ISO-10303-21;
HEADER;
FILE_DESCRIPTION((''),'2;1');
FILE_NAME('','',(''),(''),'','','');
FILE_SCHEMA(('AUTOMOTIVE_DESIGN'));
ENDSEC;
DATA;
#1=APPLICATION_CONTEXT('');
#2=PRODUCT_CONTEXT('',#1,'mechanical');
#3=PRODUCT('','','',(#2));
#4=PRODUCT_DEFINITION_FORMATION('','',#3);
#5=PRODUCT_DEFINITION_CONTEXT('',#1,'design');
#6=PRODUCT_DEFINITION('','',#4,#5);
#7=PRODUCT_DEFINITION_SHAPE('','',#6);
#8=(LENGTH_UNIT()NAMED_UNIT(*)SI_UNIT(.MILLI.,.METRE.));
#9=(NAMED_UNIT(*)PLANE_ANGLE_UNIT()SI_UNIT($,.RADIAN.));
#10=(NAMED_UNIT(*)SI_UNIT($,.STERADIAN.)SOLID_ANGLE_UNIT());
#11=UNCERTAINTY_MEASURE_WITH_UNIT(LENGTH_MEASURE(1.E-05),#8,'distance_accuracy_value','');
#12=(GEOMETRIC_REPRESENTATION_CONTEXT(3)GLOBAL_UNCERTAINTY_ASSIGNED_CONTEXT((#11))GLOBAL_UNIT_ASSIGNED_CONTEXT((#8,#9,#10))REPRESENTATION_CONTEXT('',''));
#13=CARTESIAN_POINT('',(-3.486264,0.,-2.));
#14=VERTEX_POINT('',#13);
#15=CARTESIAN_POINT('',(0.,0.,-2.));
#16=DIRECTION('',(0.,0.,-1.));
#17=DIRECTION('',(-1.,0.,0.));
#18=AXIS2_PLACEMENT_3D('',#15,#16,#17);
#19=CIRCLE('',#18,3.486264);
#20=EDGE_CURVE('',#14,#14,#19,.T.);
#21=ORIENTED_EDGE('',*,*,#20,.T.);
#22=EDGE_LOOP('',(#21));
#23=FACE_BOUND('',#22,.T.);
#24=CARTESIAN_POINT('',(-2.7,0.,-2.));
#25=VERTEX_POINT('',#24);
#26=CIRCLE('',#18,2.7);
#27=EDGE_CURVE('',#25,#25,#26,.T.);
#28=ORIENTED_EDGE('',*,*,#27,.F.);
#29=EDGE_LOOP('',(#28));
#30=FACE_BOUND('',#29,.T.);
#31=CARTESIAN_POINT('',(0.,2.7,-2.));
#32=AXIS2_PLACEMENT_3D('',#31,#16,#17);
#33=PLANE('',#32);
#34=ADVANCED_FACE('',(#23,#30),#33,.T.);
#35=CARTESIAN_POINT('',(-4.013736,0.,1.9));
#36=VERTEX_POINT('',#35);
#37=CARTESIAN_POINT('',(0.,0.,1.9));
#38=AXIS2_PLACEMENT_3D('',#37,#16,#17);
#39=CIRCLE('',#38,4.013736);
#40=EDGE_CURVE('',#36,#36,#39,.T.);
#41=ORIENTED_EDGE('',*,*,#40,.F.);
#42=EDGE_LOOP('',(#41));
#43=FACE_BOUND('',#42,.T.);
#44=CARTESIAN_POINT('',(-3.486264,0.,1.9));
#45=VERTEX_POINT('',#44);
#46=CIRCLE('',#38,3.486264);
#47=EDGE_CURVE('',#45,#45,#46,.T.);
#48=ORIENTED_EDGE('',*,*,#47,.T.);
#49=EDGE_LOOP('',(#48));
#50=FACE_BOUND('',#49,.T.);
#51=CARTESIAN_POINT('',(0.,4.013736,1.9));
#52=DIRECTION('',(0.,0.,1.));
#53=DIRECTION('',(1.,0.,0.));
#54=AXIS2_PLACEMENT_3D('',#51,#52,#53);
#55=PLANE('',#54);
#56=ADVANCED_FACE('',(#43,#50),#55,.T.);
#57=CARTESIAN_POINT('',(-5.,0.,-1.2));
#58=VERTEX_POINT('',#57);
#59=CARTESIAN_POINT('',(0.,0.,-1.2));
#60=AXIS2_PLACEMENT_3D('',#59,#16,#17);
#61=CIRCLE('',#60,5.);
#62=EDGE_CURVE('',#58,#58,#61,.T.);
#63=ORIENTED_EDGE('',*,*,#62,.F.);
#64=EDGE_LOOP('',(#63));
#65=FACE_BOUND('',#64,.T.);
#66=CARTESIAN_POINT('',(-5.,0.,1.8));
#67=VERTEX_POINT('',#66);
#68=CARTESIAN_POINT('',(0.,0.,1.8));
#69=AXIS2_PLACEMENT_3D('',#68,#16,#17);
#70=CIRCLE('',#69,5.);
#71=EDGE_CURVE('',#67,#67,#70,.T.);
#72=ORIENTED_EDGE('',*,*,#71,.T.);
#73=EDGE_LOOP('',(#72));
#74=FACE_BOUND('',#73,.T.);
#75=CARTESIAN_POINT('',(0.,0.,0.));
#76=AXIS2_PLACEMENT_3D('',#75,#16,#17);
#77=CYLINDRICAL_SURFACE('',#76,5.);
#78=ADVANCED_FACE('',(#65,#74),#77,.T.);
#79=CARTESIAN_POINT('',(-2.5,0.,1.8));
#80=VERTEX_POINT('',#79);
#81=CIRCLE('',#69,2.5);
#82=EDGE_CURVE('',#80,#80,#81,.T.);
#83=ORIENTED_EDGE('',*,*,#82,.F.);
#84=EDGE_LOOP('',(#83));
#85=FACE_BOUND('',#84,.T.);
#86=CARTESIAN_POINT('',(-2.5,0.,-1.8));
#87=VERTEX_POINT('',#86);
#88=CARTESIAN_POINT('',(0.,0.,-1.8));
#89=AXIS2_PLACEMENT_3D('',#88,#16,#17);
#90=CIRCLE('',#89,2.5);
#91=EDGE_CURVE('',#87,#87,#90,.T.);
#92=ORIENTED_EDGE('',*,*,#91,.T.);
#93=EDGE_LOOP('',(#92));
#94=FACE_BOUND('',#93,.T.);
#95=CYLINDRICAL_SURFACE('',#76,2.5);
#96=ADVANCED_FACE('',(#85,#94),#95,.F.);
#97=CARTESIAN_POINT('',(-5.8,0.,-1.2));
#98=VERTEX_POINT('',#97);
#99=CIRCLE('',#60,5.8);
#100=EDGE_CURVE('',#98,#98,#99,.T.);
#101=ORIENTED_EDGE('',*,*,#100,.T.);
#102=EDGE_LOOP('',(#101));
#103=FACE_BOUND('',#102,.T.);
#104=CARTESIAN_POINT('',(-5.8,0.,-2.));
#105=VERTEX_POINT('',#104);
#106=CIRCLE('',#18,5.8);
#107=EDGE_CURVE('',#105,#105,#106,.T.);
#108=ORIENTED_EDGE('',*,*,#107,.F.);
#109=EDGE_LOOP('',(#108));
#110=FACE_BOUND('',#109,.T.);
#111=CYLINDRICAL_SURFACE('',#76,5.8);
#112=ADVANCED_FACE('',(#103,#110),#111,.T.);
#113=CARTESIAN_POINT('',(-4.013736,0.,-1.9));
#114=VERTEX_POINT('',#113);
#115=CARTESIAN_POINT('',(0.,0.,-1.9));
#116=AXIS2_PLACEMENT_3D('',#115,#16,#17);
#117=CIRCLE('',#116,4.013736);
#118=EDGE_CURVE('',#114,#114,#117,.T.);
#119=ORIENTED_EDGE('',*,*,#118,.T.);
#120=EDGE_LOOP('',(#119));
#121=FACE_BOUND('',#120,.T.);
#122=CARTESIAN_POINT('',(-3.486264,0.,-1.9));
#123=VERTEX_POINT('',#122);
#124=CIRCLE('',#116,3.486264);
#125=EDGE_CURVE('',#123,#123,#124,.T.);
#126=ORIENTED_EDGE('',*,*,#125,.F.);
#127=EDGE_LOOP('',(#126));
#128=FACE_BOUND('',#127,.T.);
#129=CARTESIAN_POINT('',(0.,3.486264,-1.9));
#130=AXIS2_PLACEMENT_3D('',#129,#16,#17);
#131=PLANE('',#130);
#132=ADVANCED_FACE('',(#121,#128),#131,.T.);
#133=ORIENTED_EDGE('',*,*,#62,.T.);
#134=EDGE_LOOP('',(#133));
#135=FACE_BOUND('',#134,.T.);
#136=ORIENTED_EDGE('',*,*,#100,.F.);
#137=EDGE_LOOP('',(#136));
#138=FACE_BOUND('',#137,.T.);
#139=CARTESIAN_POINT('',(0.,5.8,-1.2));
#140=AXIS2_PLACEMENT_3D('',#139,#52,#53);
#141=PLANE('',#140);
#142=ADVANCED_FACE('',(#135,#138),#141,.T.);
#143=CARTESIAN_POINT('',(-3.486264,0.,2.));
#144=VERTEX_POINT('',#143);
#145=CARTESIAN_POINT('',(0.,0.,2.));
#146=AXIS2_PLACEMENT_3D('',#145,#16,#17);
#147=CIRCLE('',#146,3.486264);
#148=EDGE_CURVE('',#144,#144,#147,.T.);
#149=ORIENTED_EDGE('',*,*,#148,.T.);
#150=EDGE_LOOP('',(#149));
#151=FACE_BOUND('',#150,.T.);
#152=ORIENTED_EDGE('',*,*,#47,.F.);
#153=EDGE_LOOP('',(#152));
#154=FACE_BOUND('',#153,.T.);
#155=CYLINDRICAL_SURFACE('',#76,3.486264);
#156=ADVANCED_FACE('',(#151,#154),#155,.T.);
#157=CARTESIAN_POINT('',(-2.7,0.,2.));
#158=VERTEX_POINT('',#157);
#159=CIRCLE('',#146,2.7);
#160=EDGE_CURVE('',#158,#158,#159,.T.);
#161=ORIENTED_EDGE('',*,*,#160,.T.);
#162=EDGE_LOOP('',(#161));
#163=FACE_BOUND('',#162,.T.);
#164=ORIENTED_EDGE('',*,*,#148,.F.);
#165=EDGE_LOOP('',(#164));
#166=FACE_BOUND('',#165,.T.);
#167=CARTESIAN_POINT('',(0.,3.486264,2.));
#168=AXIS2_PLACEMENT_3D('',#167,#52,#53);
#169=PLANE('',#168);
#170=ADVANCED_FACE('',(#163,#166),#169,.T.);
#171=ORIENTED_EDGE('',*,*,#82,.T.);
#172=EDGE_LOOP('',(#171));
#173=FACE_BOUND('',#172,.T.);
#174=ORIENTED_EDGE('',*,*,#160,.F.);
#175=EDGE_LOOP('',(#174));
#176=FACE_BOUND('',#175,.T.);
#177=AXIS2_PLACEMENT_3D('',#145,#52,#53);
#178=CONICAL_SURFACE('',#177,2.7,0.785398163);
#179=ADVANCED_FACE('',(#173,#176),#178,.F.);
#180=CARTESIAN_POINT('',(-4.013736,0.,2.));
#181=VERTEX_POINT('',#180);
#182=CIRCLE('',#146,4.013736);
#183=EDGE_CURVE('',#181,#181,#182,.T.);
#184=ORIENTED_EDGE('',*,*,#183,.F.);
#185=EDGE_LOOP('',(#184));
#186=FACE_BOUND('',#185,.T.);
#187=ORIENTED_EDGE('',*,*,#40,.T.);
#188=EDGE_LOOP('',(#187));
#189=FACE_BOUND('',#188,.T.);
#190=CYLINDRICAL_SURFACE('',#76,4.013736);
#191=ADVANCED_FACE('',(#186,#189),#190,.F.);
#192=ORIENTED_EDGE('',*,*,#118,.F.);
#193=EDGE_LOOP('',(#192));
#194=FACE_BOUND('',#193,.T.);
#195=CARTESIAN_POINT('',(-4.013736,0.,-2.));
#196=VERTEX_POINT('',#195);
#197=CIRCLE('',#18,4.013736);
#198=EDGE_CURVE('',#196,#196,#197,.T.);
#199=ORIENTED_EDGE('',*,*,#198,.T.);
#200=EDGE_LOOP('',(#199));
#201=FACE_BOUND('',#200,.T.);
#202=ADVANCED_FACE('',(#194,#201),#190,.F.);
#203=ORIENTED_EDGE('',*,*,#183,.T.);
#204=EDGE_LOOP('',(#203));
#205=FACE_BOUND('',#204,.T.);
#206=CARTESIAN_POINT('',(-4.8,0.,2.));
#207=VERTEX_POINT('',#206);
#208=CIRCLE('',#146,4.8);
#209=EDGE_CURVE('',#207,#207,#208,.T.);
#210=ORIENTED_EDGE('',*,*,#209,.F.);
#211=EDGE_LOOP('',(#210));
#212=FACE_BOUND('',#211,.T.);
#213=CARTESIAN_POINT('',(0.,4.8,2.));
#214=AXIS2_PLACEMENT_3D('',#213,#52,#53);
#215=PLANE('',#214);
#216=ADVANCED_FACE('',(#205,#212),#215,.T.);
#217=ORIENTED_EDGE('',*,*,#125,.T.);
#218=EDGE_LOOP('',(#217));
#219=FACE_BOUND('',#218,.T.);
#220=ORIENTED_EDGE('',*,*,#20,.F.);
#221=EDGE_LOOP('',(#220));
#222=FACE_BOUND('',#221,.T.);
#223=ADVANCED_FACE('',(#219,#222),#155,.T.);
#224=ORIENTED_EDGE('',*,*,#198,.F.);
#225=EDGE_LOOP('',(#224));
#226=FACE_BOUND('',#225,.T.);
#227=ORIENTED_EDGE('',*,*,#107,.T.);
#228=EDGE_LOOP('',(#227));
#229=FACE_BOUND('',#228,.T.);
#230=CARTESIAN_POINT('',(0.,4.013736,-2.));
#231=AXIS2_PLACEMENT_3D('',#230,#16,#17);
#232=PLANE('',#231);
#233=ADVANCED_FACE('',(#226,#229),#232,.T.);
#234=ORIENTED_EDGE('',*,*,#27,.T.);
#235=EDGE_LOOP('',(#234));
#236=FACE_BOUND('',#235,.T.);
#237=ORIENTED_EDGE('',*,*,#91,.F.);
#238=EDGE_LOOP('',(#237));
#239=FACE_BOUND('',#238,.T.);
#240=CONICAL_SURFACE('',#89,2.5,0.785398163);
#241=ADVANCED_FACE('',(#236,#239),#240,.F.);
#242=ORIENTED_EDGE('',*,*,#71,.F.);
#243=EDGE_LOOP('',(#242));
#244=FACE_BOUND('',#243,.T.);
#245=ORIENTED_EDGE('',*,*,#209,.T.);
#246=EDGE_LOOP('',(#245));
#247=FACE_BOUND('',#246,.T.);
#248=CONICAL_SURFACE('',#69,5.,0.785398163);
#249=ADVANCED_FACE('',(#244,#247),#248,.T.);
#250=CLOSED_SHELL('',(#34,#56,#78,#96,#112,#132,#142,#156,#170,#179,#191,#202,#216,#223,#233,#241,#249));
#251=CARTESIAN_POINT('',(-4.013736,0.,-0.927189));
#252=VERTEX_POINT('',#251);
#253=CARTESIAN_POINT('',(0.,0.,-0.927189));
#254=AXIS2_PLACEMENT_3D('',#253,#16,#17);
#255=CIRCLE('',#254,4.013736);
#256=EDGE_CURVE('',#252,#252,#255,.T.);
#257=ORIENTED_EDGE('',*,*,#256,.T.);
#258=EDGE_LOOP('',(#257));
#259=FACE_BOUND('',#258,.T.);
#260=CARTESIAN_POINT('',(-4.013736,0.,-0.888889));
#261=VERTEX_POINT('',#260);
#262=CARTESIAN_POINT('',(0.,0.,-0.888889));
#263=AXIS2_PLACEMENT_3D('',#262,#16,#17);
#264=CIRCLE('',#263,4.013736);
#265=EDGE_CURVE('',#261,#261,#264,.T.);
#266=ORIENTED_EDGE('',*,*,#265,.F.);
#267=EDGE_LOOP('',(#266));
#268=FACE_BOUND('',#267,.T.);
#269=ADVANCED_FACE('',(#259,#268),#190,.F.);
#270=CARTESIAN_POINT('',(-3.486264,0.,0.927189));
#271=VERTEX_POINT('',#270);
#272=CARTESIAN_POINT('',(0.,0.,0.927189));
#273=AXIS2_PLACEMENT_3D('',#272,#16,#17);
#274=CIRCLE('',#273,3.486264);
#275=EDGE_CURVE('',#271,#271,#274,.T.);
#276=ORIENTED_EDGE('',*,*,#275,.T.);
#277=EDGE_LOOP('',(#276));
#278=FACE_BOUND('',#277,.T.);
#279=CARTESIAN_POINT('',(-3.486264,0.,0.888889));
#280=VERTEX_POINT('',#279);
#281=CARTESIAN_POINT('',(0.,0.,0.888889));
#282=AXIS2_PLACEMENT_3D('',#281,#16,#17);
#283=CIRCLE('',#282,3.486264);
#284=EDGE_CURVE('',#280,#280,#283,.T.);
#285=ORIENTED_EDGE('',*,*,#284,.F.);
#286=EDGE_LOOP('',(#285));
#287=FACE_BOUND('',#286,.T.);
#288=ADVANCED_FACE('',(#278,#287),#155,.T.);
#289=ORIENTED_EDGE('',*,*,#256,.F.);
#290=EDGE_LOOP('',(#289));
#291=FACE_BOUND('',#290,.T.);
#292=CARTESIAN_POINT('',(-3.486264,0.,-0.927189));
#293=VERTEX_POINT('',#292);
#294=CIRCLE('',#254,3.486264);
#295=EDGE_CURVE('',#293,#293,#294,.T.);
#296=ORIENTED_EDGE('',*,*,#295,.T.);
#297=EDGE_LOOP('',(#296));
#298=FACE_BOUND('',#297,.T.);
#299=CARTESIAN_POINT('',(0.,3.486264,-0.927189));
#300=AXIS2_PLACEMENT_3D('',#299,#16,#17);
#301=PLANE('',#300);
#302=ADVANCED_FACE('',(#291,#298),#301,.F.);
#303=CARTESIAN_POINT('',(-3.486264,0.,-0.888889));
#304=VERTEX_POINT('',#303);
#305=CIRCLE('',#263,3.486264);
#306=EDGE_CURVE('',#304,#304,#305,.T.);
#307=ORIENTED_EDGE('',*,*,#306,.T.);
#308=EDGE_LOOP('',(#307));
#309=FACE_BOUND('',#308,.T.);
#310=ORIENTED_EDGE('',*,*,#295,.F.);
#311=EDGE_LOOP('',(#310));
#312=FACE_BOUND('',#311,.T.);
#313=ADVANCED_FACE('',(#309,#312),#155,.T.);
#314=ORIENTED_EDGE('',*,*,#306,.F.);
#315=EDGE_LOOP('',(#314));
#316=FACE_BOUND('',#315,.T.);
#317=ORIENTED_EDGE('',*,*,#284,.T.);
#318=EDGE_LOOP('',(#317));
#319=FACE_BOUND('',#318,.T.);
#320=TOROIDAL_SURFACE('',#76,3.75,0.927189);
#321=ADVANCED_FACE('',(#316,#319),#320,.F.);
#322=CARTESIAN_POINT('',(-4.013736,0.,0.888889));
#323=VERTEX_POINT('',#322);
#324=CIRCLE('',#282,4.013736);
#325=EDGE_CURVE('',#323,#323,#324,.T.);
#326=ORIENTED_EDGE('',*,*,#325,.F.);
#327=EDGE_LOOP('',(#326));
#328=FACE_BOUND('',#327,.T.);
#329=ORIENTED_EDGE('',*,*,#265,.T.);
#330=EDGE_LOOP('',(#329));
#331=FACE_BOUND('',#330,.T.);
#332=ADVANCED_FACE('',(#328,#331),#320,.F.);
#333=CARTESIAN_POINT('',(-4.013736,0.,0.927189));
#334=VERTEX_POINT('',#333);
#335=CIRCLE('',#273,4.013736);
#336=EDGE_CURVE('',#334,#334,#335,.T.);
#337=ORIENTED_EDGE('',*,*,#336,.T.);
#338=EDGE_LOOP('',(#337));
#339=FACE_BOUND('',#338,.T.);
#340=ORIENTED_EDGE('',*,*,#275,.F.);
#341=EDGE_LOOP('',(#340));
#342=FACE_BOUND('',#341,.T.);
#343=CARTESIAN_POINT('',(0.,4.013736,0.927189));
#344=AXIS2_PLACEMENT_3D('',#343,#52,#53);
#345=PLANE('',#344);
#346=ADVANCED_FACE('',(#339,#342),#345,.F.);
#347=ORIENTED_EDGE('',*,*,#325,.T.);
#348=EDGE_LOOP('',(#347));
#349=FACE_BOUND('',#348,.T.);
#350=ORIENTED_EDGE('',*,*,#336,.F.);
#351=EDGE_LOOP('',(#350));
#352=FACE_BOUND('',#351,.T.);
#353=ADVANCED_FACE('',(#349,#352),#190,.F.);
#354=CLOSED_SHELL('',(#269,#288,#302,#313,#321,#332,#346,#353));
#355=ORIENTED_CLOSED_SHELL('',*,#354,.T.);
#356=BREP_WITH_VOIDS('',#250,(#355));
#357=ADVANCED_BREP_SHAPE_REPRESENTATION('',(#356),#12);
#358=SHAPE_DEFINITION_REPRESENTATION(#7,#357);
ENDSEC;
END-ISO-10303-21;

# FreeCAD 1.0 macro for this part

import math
import FreeCAD as App
import Part
import Sketcher

doc = App.newDocument("Part")
params = doc.addObject("Spreadsheet::Sheet", "Params")
for row, (alias, value) in enumerate([
    ("sketch1_height", "3 mm"),
    ("sketch1_width", "0.8 mm"),
    ("sketch1_height2", "0.1 mm"),
    ("sketch1_height3", "3.6 mm"),
    ("revolution_angle", "360 deg"),
], start=1):
    params.set(f"A{row}", alias)
    params.set(f"B{row}", "=" + value)
    params.setAlias(f"B{row}", alias)

body = doc.addObject("PartDesign::Body", "Body")

# Sketch on YZ plane
sketch1 = body.newObject("Sketcher::SketchObject", "Sketch")
sketch1.AttachmentSupport = (doc.getObject("YZ_Plane"), [""])
sketch1.MapMode = "FlatFace"
sketch1.addGeometry([
    Part.LineSegment(App.Vector(5.8, -2, 0), App.Vector(5.8, -1.2, 0)),  # 0
    Part.LineSegment(App.Vector(5.8, -1.2, 0), App.Vector(5, -1.2, 0)),  # 1
    Part.LineSegment(App.Vector(5, -1.2, 0), App.Vector(5, 1.8, 0)),  # 2
    Part.LineSegment(App.Vector(5, 1.8, 0), App.Vector(4.8, 2, 0)),  # 3
    Part.LineSegment(App.Vector(4.8, 2, 0), App.Vector(4.014, 2, 0)),  # 4
    Part.LineSegment(App.Vector(4.014, 2, 0), App.Vector(4.014, 1.9, 0)),  # 5
    Part.LineSegment(App.Vector(4.014, 1.9, 0), App.Vector(3.486, 1.9, 0)),  # 6
    Part.LineSegment(App.Vector(3.486, 1.9, 0), App.Vector(3.486, 2, 0)),  # 7
    Part.LineSegment(App.Vector(3.486, 2, 0), App.Vector(2.7, 2, 0)),  # 8
    Part.LineSegment(App.Vector(2.7, 2, 0), App.Vector(2.5, 1.8, 0)),  # 9
    Part.LineSegment(App.Vector(2.5, 1.8, 0), App.Vector(2.5, -1.8, 0)),  # 10
    Part.LineSegment(App.Vector(2.5, -1.8, 0), App.Vector(2.7, -2, 0)),  # 11
    Part.LineSegment(App.Vector(2.7, -2, 0), App.Vector(3.486, -2, 0)),  # 12
    Part.LineSegment(App.Vector(3.486, -2, 0), App.Vector(3.486, -1.9, 0)),  # 13
    Part.LineSegment(App.Vector(3.486, -1.9, 0), App.Vector(4.014, -1.9, 0)),  # 14
    Part.LineSegment(App.Vector(4.014, -1.9, 0), App.Vector(4.014, -2, 0)),  # 15
    Part.LineSegment(App.Vector(4.014, -2, 0), App.Vector(5.8, -2, 0)),  # 16
    Part.LineSegment(App.Vector(4.014, 0.927, 0), App.Vector(4.014, 0.889, 0)),  # 17
    Part.ArcOfCircle(Part.Circle(App.Vector(3.75, 0, 0), App.Vector(0, 0, 1), 0.927), math.radians(-73), math.radians(73)),  # 18
    Part.LineSegment(App.Vector(4.014, -0.889, 0), App.Vector(4.014, -0.927, 0)),  # 19
    Part.LineSegment(App.Vector(4.014, -0.927, 0), App.Vector(3.486, -0.927, 0)),  # 20
    Part.LineSegment(App.Vector(3.486, -0.927, 0), App.Vector(3.486, -0.889, 0)),  # 21
    Part.ArcOfCircle(Part.Circle(App.Vector(3.75, 0, 0), App.Vector(0, 0, 1), 0.927), math.radians(107), math.radians(253)),  # 22
    Part.LineSegment(App.Vector(3.486, 0.889, 0), App.Vector(3.486, 0.927, 0)),  # 23
    Part.LineSegment(App.Vector(3.486, 0.927, 0), App.Vector(4.014, 0.927, 0)),  # 24
], False)
sketch1.addConstraint([
    Sketcher.Constraint("Coincident", 0, 2, 1, 1),
    Sketcher.Constraint("Coincident", 1, 2, 2, 1),
    Sketcher.Constraint("Coincident", 2, 2, 3, 1),
    Sketcher.Constraint("Coincident", 3, 2, 4, 1),
    Sketcher.Constraint("Coincident", 4, 2, 5, 1),
    Sketcher.Constraint("Coincident", 5, 2, 6, 1),
    Sketcher.Constraint("Coincident", 6, 2, 7, 1),
    Sketcher.Constraint("Coincident", 7, 2, 8, 1),
    Sketcher.Constraint("Coincident", 8, 2, 9, 1),
    Sketcher.Constraint("Coincident", 9, 2, 10, 1),
    Sketcher.Constraint("Coincident", 10, 2, 11, 1),
    Sketcher.Constraint("Coincident", 11, 2, 12, 1),
    Sketcher.Constraint("Coincident", 12, 2, 13, 1),
    Sketcher.Constraint("Coincident", 13, 2, 14, 1),
    Sketcher.Constraint("Coincident", 14, 2, 15, 1),
    Sketcher.Constraint("Coincident", 15, 2, 16, 1),
    Sketcher.Constraint("Coincident", 16, 2, 0, 1),
    Sketcher.Constraint("Coincident", 17, 2, 18, 2),
    Sketcher.Constraint("Coincident", 18, 1, 19, 1),
    Sketcher.Constraint("Coincident", 19, 2, 20, 1),
    Sketcher.Constraint("Coincident", 20, 2, 21, 1),
    Sketcher.Constraint("Coincident", 21, 2, 22, 2),
    Sketcher.Constraint("Coincident", 22, 1, 23, 1),
    Sketcher.Constraint("Coincident", 23, 2, 24, 1),
    Sketcher.Constraint("Coincident", 24, 2, 17, 1),
    Sketcher.Constraint("Vertical", 0),
    Sketcher.Constraint("Horizontal", 1),
    Sketcher.Constraint("Vertical", 2),
    Sketcher.Constraint("Horizontal", 4),
    Sketcher.Constraint("Vertical", 5),
    Sketcher.Constraint("Horizontal", 6),
    Sketcher.Constraint("Vertical", 7),
    Sketcher.Constraint("Horizontal", 8),
    Sketcher.Constraint("Vertical", 10),
    Sketcher.Constraint("Horizontal", 12),
    Sketcher.Constraint("Vertical", 13),
    Sketcher.Constraint("Horizontal", 14),
    Sketcher.Constraint("Vertical", 15),
    Sketcher.Constraint("Horizontal", 16),
    Sketcher.Constraint("Vertical", 17),
    Sketcher.Constraint("Vertical", 19),
    Sketcher.Constraint("Horizontal", 20),
    Sketcher.Constraint("Vertical", 21),
    Sketcher.Constraint("Vertical", 23),
    Sketcher.Constraint("Horizontal", 24),
    Sketcher.Constraint("Coincident", 22, 3, 18, 3),
    Sketcher.Constraint("Equal", 18, 22),
    Sketcher.Constraint("Symmetric", 8, 2, 11, 2, -1),
    Sketcher.Constraint("Symmetric", 6, 2, 13, 2, -1),
    Sketcher.Constraint("Symmetric", 4, 2, 15, 2, -1),
    Sketcher.Constraint("Symmetric", 17, 2, 18, 1, -1),
    Sketcher.Constraint("Symmetric", 20, 2, 23, 2, -1),
    Sketcher.Constraint("Perpendicular", 3, 9),
    Sketcher.Constraint("Perpendicular", 9, 11),
    Sketcher.Constraint("Horizontal", 4, 2, 7, 2),
    Sketcher.Constraint("Horizontal", 2, 2, 9, 2),
    Sketcher.Constraint("Horizontal", 18, 1, 21, 2),
    Sketcher.Constraint("Vertical", 15, 2, 17, 2),
    Sketcher.Constraint("Vertical", 13, 2, 20, 2),
    Sketcher.Constraint("Equal", 4, 8),
    Sketcher.Constraint("Equal", 1, 0),
    Sketcher.Constraint("Equal", 3, 9),
    Sketcher.Constraint("DistanceY", 2, 1, 2, 2, 3.0),
    Sketcher.Constraint("DistanceX", 1, 2, 1, 1, 0.8),
    Sketcher.Constraint("DistanceY", 5, 2, 5, 1, 0.1),
    Sketcher.Constraint("DistanceY", 10, 2, 10, 1, 3.6),
    Sketcher.Constraint("DistanceX", -1, 1, 1, 2, 5.0),
    Sketcher.Constraint("DistanceX", -1, 1, 8, 2, 2.7),
    Sketcher.Constraint("Radius", 18, 0.927189),
    Sketcher.Constraint("DistanceY", 17, 2, 17, 1, 0.038301),
    Sketcher.Constraint("DistanceX", 4, 2, 4, 1, 0.786264),
])
sketch1.setExpression("Constraints[62]", "Params.sketch1_height")
sketch1.setExpression("Constraints[63]", "Params.sketch1_width")
sketch1.setExpression("Constraints[64]", "Params.sketch1_height2")
sketch1.setExpression("Constraints[65]", "Params.sketch1_height3")
revolution = body.newObject("PartDesign::Revolution", "Revolution")
revolution.Profile = sketch1
revolution.ReferenceAxis = (sketch1, ["V_Axis"])
revolution.setExpression("Angle", "Params.revolution_angle")

doc.recompute()
